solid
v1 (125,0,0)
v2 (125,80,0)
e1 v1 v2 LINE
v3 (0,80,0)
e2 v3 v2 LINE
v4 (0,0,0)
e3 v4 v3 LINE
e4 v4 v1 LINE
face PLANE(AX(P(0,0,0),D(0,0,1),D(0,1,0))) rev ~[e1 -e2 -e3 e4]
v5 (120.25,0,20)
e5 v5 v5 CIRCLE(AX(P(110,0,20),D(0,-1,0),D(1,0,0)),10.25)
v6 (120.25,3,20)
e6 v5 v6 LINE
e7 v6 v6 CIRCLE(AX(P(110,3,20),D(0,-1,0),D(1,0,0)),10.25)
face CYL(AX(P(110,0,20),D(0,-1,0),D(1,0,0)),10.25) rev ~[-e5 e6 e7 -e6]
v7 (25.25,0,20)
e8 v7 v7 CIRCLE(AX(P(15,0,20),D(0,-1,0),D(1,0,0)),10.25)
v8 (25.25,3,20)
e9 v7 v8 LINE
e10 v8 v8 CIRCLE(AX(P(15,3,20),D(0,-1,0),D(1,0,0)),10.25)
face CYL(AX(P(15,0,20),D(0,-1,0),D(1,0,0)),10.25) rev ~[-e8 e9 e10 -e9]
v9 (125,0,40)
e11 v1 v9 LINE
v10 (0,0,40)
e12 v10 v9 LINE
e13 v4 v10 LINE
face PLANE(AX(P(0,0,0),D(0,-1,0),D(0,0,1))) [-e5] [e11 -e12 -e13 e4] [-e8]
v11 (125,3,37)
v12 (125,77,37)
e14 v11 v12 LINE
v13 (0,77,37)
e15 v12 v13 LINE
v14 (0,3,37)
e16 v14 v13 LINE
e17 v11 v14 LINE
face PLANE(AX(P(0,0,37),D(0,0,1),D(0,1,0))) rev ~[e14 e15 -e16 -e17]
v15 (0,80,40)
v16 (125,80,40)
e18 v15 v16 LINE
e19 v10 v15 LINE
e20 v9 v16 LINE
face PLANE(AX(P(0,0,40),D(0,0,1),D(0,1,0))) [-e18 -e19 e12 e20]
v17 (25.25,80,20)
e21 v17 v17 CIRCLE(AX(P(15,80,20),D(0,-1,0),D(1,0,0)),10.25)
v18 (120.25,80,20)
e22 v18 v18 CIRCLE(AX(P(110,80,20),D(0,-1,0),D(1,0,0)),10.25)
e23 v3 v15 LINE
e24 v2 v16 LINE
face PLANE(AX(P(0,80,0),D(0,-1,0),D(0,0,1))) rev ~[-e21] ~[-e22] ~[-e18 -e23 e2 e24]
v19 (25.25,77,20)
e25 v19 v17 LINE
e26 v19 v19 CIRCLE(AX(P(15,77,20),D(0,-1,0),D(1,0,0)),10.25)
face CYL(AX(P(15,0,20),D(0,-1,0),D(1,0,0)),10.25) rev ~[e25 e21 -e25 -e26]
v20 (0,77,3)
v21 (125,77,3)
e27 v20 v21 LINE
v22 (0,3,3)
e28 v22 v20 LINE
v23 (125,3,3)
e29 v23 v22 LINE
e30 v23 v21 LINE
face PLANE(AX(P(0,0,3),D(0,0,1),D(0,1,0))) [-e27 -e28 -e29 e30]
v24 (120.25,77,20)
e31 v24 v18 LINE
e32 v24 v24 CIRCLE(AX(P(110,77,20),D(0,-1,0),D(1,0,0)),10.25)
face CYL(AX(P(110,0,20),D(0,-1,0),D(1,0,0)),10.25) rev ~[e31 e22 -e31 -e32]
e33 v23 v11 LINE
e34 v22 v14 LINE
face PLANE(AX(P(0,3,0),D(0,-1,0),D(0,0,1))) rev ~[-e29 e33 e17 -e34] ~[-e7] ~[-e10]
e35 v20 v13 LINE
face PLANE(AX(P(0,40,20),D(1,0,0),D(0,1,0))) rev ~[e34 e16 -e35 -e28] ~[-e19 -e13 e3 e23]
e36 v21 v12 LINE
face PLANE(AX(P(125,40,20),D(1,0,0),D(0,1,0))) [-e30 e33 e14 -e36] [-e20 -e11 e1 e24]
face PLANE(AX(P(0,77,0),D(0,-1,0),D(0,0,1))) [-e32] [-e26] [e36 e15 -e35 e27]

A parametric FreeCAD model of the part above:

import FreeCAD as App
import Part
import Sketcher


def faces_at(feature, points):
    """Names of the faces that lie closest to the given points."""
    faces = feature.Shape.Faces
    near = lambda p: min(range(len(faces)), key=lambda i: faces[i].distToShape(Part.Vertex(*p))[0])
    return sorted({f"Face{near(p) + 1}" for p in points})

doc = App.newDocument("Part")
body = doc.addObject("PartDesign::Body", "Body")

sketch1 = doc.addObject("Sketcher::SketchObject", "Sketch")
body.addObject(sketch1)
sketch1.AttachmentSupport = (doc.YZ_Plane, [""])
sketch1.MapMode = "FlatFace"
sketch1.addGeometry([
    Part.LineSegment(App.Vector(0, 40, 0), App.Vector(0, 0, 0)),
    Part.LineSegment(App.Vector(0, 0, 0), App.Vector(80, 0, 0)),
    Part.LineSegment(App.Vector(80, 0, 0), App.Vector(80, 40, 0)),
    Part.LineSegment(App.Vector(80, 40, 0), App.Vector(0, 40, 0)),
], False)
sketch1.addConstraint([
    Sketcher.Constraint("Coincident", 0, 2, 1, 1),
    Sketcher.Constraint("Coincident", 1, 2, 2, 1),
    Sketcher.Constraint("Coincident", 2, 2, 3, 1),
    Sketcher.Constraint("Coincident", 3, 2, 0, 1),
    Sketcher.Constraint("Vertical", 0),
    Sketcher.Constraint("Horizontal", 1),
    Sketcher.Constraint("Vertical", 2),
    Sketcher.Constraint("Horizontal", 3),
    Sketcher.Constraint("Coincident", 0, 2, -1, 1),
    Sketcher.Constraint("DistanceX", 1, 1, 1, 2, 80.0),
    Sketcher.Constraint("DistanceY", 0, 2, 0, 1, 40.0),
])
pad1 = doc.addObject("PartDesign::Pad", "Pad")
body.addObject(pad1)
pad1.Profile = sketch1
pad1.Length = 125
doc.recompute()

thickness = doc.addObject("PartDesign::Thickness", "Thickness")
body.addObject(thickness)
thickness.Base = (pad1, faces_at(pad1, [(125, 40, 20), (0, 40, 20)]))
thickness.Value = 3
thickness.Reversed = True
thickness.Join = "Arc"

sketch2 = doc.addObject("Sketcher::SketchObject", "Sketch001")
body.addObject(sketch2)
sketch2.AttachmentSupport = (doc.XZ_Plane, [""])
sketch2.MapMode = "FlatFace"
sketch2.addGeometry([
    Part.Circle(App.Vector(15, 20, 0), App.Vector(0, 0, 1), 10),
    Part.Circle(App.Vector(110, 20, 0), App.Vector(0, 0, 1), 10),
], False)
sketch2.addConstraint([
    Sketcher.Constraint("Equal", 0, 1),
    Sketcher.Constraint("Horizontal", 0, 3, 1, 3),
    Sketcher.Constraint("Diameter", 0, 20.5),
    Sketcher.Constraint("DistanceX", -1, 1, 0, 3, 15.0),
    Sketcher.Constraint("DistanceY", -1, 1, 0, 3, 20.0),
    Sketcher.Constraint("DistanceX", -1, 1, 1, 3, 110.0),
])
pocket1 = doc.addObject("PartDesign::Pocket", "Pocket")
body.addObject(pocket1)
pocket1.Profile = sketch2
pocket1.Type = "ThroughAll"

doc.recompute()
